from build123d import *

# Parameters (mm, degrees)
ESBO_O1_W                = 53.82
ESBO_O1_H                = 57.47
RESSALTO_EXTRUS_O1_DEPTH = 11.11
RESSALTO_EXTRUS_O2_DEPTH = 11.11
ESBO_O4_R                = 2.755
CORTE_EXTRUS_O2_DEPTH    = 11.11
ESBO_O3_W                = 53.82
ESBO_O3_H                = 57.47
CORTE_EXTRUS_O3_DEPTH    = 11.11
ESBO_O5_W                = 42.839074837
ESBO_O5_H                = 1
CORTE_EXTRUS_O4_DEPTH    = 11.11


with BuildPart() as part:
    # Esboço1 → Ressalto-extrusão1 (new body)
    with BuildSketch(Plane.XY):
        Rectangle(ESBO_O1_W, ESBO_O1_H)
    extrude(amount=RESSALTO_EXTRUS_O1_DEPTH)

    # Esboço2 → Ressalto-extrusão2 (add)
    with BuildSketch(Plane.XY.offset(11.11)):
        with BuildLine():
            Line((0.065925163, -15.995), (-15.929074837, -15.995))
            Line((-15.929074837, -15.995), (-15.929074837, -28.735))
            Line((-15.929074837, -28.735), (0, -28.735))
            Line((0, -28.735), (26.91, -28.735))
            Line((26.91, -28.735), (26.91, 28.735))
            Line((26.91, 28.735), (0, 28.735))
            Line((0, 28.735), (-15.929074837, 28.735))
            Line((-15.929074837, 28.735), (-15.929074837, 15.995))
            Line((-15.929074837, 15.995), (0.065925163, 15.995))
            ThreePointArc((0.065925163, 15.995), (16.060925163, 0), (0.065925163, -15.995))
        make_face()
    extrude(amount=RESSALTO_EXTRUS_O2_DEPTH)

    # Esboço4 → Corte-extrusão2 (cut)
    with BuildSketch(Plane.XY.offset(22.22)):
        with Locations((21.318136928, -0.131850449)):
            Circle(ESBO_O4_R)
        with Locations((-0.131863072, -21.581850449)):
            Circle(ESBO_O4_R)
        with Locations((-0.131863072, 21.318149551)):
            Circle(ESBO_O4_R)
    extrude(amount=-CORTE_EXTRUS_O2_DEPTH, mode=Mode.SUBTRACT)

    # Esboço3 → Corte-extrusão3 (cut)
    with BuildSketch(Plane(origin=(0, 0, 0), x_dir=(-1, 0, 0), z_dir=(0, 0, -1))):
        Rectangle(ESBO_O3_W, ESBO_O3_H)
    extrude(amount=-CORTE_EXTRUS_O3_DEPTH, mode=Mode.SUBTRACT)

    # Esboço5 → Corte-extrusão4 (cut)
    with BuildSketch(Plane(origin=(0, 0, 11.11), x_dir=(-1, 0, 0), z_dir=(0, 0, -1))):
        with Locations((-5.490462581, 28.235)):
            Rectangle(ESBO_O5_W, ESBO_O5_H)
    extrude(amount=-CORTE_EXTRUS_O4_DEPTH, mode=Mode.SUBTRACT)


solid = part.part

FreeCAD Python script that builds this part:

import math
import FreeCAD as App
import Part
import Sketcher
Q = App.Units.Quantity

doc = App.newDocument("Part")
params = doc.addObject("Spreadsheet::Sheet", "Params")
for row, (alias, value) in enumerate([
    ("sketch1_width", "53.82 mm"),
    ("sketch1_height", "57.47 mm"),
    ("pad1_length", "11.11 mm"),
    ("sketch2_height", "12.74 mm"),
    ("pad2_length", "11.11 mm"),
    ("sketch3_diameter", "5.51 mm"),
    ("pocket1_length", "11.11 mm"),
    ("sketch4_width", "53.82 mm"),
    ("sketch4_height", "57.47 mm"),
    ("pocket2_length", "11.11 mm"),
    ("sketch5_height", "1 mm"),
    ("pocket3_length", "11.11 mm"),
], start=1):
    params.set(f"A{row}", alias)
    params.set(f"B{row}", "=" + value)
    params.setAlias(f"B{row}", alias)

body = doc.addObject("PartDesign::Body", "Body")

# Sketch on XY plane
sketch1 = body.newObject("Sketcher::SketchObject", "Sketch")
sketch1.AttachmentSupport = (doc.getObject("XY_Plane"), [""])
sketch1.MapMode = "FlatFace"
sketch1.addGeometry(Part.LineSegment(App.Vector(-27, 29, 0), App.Vector(-27, -29, 0)), False)
sketch1.addGeometry(Part.LineSegment(App.Vector(-27, -29, 0), App.Vector(27, -29, 0)), False)
sketch1.addGeometry(Part.LineSegment(App.Vector(27, -29, 0), App.Vector(27, 29, 0)), False)
sketch1.addGeometry(Part.LineSegment(App.Vector(27, 29, 0), App.Vector(-27, 29, 0)), False)
sketch1.addConstraint(Sketcher.Constraint("Coincident", 0, 2, 1, 1))
sketch1.addConstraint(Sketcher.Constraint("Coincident", 1, 2, 2, 1))
sketch1.addConstraint(Sketcher.Constraint("Coincident", 2, 2, 3, 1))
sketch1.addConstraint(Sketcher.Constraint("Coincident", 3, 2, 0, 1))
sketch1.addConstraint(Sketcher.Constraint("Vertical", 0))
sketch1.addConstraint(Sketcher.Constraint("Horizontal", 1))
sketch1.addConstraint(Sketcher.Constraint("Vertical", 2))
sketch1.addConstraint(Sketcher.Constraint("Horizontal", 3))
sketch1.addConstraint(Sketcher.Constraint("Symmetric", 0, 2, 2, 2, -1, 1))
sketch1.addConstraint(Sketcher.Constraint("DistanceX", 1, 1, 1, 2, Q("53.82 mm")))
sketch1.addConstraint(Sketcher.Constraint("DistanceY", 0, 2, 0, 1, Q("57.47 mm")))
sketch1.setExpression("Constraints[9]", "Params.sketch1_width")
sketch1.setExpression("Constraints[10]", "Params.sketch1_height")
pad1 = body.newObject("PartDesign::Pad", "Pad")
pad1.Profile = sketch1
pad1.setExpression("Length", "Params.pad1_length")

# Sketch on XY plane
sketch2 = body.newObject("Sketcher::SketchObject", "Sketch001")
sketch2.AttachmentSupport = (doc.getObject("XY_Plane"), [""])
sketch2.MapMode = "FlatFace"
sketch2.AttachmentOffset = App.Placement(App.Vector(0, 0, 11.11), App.Rotation())
sketch2.addGeometry(Part.LineSegment(App.Vector(0, -16, 0), App.Vector(-16, -16, 0)), False)
sketch2.addGeometry(Part.LineSegment(App.Vector(-16, -16, 0), App.Vector(-16, -29, 0)), False)
sketch2.addGeometry(Part.LineSegment(App.Vector(-16, -29, 0), App.Vector(27, -29, 0)), False)
sketch2.addGeometry(Part.LineSegment(App.Vector(27, -29, 0), App.Vector(27, 29, 0)), False)
sketch2.addGeometry(Part.LineSegment(App.Vector(27, 29, 0), App.Vector(-16, 29, 0)), False)
sketch2.addGeometry(Part.LineSegment(App.Vector(-16, 29, 0), App.Vector(-16, 16, 0)), False)
sketch2.addGeometry(Part.LineSegment(App.Vector(-16, 16, 0), App.Vector(0, 16, 0)), False)
sketch2.addGeometry(Part.ArcOfCircle(Part.Circle(App.Vector(0, 0, 0), App.Vector(0, 0, 1), 16), math.radians(-90), math.radians(90)), False)
sketch2.addConstraint(Sketcher.Constraint("Coincident", 0, 2, 1, 1))
sketch2.addConstraint(Sketcher.Constraint("Coincident", 1, 2, 2, 1))
sketch2.addConstraint(Sketcher.Constraint("Coincident", 2, 2, 3, 1))
sketch2.addConstraint(Sketcher.Constraint("Coincident", 3, 2, 4, 1))
sketch2.addConstraint(Sketcher.Constraint("Coincident", 4, 2, 5, 1))
sketch2.addConstraint(Sketcher.Constraint("Coincident", 5, 2, 6, 1))
sketch2.addConstraint(Sketcher.Constraint("Tangent", 6, 2, 7, 2))
sketch2.addConstraint(Sketcher.Constraint("Tangent", 7, 1, 0, 1))
sketch2.addConstraint(Sketcher.Constraint("Horizontal", 0))
sketch2.addConstraint(Sketcher.Constraint("Vertical", 1))
sketch2.addConstraint(Sketcher.Constraint("Horizontal", 2))
sketch2.addConstraint(Sketcher.Constraint("Vertical", 3))
sketch2.addConstraint(Sketcher.Constraint("Horizontal", 4))
sketch2.addConstraint(Sketcher.Constraint("Vertical", 5))
sketch2.addConstraint(Sketcher.Constraint("Horizontal", 6))
sketch2.addConstraint(Sketcher.Constraint("Symmetric", 1, 2, 4, 2, -1))
sketch2.addConstraint(Sketcher.Constraint("PointOnObject", 7, 3, -1))
sketch2.addConstraint(Sketcher.Constraint("Radius", 7, Q("15.995 mm")))
sketch2.addConstraint(Sketcher.Constraint("DistanceY", 1, 2, 1, 1, Q("12.74 mm")))
sketch2.addConstraint(Sketcher.Constraint("DistanceX", 0, 2, 0, 1, Q("15.995 mm")))
sketch2.addConstraint(Sketcher.Constraint("DistanceX", -1, 1, 2, 2, Q("26.91 mm")))
sketch2.addConstraint(Sketcher.Constraint("DistanceX", 2, 1, 2, 2, Q("42.839075 mm")))
sketch2.setExpression("Constraints[18]", "Params.sketch2_height")
pad2 = body.newObject("PartDesign::Pad", "Pad001")
pad2.Profile = sketch2
pad2.setExpression("Length", "Params.pad2_length")

# Sketch on XY plane
sketch3 = body.newObject("Sketcher::SketchObject", "Sketch002")
sketch3.AttachmentSupport = (doc.getObject("XY_Plane"), [""])
sketch3.MapMode = "FlatFace"
sketch3.AttachmentOffset = App.Placement(App.Vector(0, 0, 22.22), App.Rotation())
sketch3.addGeometry(Part.Circle(App.Vector(21.3, -0.1, 0), App.Vector(0, 0, 1), 2.8), False)
sketch3.addGeometry(Part.Circle(App.Vector(-0.1, -21.6, 0), App.Vector(0, 0, 1), 2.8), False)
sketch3.addGeometry(Part.Circle(App.Vector(-0.1, 21.3, 0), App.Vector(0, 0, 1), 2.8), False)
sketch3.addConstraint(Sketcher.Constraint("Equal", 0, 1))
sketch3.addConstraint(Sketcher.Constraint("Equal", 1, 2))
sketch3.addConstraint(Sketcher.Constraint("Vertical", 1, 3, 2, 3))
sketch3.addConstraint(Sketcher.Constraint("Diameter", 0, Q("5.51 mm")))
sketch3.addConstraint(Sketcher.Constraint("DistanceY", 1, 3, 2, 3, Q("42.9 mm")))
sketch3.addConstraint(Sketcher.Constraint("DistanceX", 1, 3, 0, 3, Q("21.45 mm")))
sketch3.addConstraint(Sketcher.Constraint("DistanceY", 1, 3, 0, 3, Q("21.45 mm")))
sketch3.addConstraint(Sketcher.Constraint("DistanceY", 0, 3, -1, 1, Q("0.13185 mm")))
sketch3.addConstraint(Sketcher.Constraint("DistanceX", -1, 1, 0, 3, Q("21.318137 mm")))
sketch3.setExpression("Constraints[3]", "Params.sketch3_diameter")
pocket1 = body.newObject("PartDesign::Pocket", "Pocket")
pocket1.Profile = sketch3
pocket1.setExpression("Length", "Params.pocket1_length")

# Sketch on XY plane
sketch4 = body.newObject("Sketcher::SketchObject", "Sketch003")
sketch4.AttachmentSupport = (doc.getObject("XY_Plane"), [""])
sketch4.MapMode = "FlatFace"
sketch4.addGeometry(Part.LineSegment(App.Vector(27, 29, 0), App.Vector(27, -29, 0)), False)
sketch4.addGeometry(Part.LineSegment(App.Vector(27, -29, 0), App.Vector(-27, -29, 0)), False)
sketch4.addGeometry(Part.LineSegment(App.Vector(-27, -29, 0), App.Vector(-27, 29, 0)), False)
sketch4.addGeometry(Part.LineSegment(App.Vector(-27, 29, 0), App.Vector(27, 29, 0)), False)
sketch4.addConstraint(Sketcher.Constraint("Coincident", 0, 2, 1, 1))
sketch4.addConstraint(Sketcher.Constraint("Coincident", 1, 2, 2, 1))
sketch4.addConstraint(Sketcher.Constraint("Coincident", 2, 2, 3, 1))
sketch4.addConstraint(Sketcher.Constraint("Coincident", 3, 2, 0, 1))
sketch4.addConstraint(Sketcher.Constraint("Vertical", 0))
sketch4.addConstraint(Sketcher.Constraint("Horizontal", 1))
sketch4.addConstraint(Sketcher.Constraint("Vertical", 2))
sketch4.addConstraint(Sketcher.Constraint("Horizontal", 3))
sketch4.addConstraint(Sketcher.Constraint("Symmetric", 0, 2, 2, 2, -1, 1))
sketch4.addConstraint(Sketcher.Constraint("DistanceX", 1, 2, 1, 1, Q("53.82 mm")))
sketch4.addConstraint(Sketcher.Constraint("DistanceY", 0, 2, 0, 1, Q("57.47 mm")))
sketch4.setExpression("Constraints[9]", "Params.sketch4_width")
sketch4.setExpression("Constraints[10]", "Params.sketch4_height")
pocket2 = body.newObject("PartDesign::Pocket", "Pocket001")
pocket2.Profile = sketch4
pocket2.setExpression("Length", "Params.pocket2_length")
pocket2.Reversed = True

# Sketch on XY plane
sketch5 = body.newObject("Sketcher::SketchObject", "Sketch004")
sketch5.AttachmentSupport = (doc.getObject("XY_Plane"), [""])
sketch5.MapMode = "FlatFace"
sketch5.AttachmentOffset = App.Placement(App.Vector(0, 0, 11.11), App.Rotation())
sketch5.addGeometry(Part.LineSegment(App.Vector(26.9, 28.7, 0), App.Vector(26.9, 27.7, 0)), False)
sketch5.addGeometry(Part.LineSegment(App.Vector(26.9, 27.7, 0), App.Vector(-15.9, 27.7, 0)), False)
sketch5.addGeometry(Part.LineSegment(App.Vector(-15.9, 27.7, 0), App.Vector(-15.9, 28.7, 0)), False)
sketch5.addGeometry(Part.LineSegment(App.Vector(-15.9, 28.7, 0), App.Vector(26.9, 28.7, 0)), False)
sketch5.addConstraint(Sketcher.Constraint("Coincident", 0, 2, 1, 1))
sketch5.addConstraint(Sketcher.Constraint("Coincident", 1, 2, 2, 1))
sketch5.addConstraint(Sketcher.Constraint("Coincident", 2, 2, 3, 1))
sketch5.addConstraint(Sketcher.Constraint("Coincident", 3, 2, 0, 1))
sketch5.addConstraint(Sketcher.Constraint("Vertical", 0))
sketch5.addConstraint(Sketcher.Constraint("Horizontal", 1))
sketch5.addConstraint(Sketcher.Constraint("Vertical", 2))
sketch5.addConstraint(Sketcher.Constraint("Horizontal", 3))
sketch5.addConstraint(Sketcher.Constraint("DistanceY", 0, 2, 0, 1, Q("1 mm")))
sketch5.addConstraint(Sketcher.Constraint("DistanceX", -1, 1, 0, 2, Q("26.91 mm")))
sketch5.addConstraint(Sketcher.Constraint("DistanceY", -1, 1, 0, 2, Q("27.735 mm")))
sketch5.addConstraint(Sketcher.Constraint("DistanceX", 1, 2, 1, 1, Q("42.839075 mm")))
sketch5.setExpression("Constraints[8]", "Params.sketch5_height")
pocket3 = body.newObject("PartDesign::Pocket", "Pocket002")
pocket3.Profile = sketch5
pocket3.setExpression("Length", "Params.pocket3_length")
pocket3.Reversed = True

doc.recompute()
